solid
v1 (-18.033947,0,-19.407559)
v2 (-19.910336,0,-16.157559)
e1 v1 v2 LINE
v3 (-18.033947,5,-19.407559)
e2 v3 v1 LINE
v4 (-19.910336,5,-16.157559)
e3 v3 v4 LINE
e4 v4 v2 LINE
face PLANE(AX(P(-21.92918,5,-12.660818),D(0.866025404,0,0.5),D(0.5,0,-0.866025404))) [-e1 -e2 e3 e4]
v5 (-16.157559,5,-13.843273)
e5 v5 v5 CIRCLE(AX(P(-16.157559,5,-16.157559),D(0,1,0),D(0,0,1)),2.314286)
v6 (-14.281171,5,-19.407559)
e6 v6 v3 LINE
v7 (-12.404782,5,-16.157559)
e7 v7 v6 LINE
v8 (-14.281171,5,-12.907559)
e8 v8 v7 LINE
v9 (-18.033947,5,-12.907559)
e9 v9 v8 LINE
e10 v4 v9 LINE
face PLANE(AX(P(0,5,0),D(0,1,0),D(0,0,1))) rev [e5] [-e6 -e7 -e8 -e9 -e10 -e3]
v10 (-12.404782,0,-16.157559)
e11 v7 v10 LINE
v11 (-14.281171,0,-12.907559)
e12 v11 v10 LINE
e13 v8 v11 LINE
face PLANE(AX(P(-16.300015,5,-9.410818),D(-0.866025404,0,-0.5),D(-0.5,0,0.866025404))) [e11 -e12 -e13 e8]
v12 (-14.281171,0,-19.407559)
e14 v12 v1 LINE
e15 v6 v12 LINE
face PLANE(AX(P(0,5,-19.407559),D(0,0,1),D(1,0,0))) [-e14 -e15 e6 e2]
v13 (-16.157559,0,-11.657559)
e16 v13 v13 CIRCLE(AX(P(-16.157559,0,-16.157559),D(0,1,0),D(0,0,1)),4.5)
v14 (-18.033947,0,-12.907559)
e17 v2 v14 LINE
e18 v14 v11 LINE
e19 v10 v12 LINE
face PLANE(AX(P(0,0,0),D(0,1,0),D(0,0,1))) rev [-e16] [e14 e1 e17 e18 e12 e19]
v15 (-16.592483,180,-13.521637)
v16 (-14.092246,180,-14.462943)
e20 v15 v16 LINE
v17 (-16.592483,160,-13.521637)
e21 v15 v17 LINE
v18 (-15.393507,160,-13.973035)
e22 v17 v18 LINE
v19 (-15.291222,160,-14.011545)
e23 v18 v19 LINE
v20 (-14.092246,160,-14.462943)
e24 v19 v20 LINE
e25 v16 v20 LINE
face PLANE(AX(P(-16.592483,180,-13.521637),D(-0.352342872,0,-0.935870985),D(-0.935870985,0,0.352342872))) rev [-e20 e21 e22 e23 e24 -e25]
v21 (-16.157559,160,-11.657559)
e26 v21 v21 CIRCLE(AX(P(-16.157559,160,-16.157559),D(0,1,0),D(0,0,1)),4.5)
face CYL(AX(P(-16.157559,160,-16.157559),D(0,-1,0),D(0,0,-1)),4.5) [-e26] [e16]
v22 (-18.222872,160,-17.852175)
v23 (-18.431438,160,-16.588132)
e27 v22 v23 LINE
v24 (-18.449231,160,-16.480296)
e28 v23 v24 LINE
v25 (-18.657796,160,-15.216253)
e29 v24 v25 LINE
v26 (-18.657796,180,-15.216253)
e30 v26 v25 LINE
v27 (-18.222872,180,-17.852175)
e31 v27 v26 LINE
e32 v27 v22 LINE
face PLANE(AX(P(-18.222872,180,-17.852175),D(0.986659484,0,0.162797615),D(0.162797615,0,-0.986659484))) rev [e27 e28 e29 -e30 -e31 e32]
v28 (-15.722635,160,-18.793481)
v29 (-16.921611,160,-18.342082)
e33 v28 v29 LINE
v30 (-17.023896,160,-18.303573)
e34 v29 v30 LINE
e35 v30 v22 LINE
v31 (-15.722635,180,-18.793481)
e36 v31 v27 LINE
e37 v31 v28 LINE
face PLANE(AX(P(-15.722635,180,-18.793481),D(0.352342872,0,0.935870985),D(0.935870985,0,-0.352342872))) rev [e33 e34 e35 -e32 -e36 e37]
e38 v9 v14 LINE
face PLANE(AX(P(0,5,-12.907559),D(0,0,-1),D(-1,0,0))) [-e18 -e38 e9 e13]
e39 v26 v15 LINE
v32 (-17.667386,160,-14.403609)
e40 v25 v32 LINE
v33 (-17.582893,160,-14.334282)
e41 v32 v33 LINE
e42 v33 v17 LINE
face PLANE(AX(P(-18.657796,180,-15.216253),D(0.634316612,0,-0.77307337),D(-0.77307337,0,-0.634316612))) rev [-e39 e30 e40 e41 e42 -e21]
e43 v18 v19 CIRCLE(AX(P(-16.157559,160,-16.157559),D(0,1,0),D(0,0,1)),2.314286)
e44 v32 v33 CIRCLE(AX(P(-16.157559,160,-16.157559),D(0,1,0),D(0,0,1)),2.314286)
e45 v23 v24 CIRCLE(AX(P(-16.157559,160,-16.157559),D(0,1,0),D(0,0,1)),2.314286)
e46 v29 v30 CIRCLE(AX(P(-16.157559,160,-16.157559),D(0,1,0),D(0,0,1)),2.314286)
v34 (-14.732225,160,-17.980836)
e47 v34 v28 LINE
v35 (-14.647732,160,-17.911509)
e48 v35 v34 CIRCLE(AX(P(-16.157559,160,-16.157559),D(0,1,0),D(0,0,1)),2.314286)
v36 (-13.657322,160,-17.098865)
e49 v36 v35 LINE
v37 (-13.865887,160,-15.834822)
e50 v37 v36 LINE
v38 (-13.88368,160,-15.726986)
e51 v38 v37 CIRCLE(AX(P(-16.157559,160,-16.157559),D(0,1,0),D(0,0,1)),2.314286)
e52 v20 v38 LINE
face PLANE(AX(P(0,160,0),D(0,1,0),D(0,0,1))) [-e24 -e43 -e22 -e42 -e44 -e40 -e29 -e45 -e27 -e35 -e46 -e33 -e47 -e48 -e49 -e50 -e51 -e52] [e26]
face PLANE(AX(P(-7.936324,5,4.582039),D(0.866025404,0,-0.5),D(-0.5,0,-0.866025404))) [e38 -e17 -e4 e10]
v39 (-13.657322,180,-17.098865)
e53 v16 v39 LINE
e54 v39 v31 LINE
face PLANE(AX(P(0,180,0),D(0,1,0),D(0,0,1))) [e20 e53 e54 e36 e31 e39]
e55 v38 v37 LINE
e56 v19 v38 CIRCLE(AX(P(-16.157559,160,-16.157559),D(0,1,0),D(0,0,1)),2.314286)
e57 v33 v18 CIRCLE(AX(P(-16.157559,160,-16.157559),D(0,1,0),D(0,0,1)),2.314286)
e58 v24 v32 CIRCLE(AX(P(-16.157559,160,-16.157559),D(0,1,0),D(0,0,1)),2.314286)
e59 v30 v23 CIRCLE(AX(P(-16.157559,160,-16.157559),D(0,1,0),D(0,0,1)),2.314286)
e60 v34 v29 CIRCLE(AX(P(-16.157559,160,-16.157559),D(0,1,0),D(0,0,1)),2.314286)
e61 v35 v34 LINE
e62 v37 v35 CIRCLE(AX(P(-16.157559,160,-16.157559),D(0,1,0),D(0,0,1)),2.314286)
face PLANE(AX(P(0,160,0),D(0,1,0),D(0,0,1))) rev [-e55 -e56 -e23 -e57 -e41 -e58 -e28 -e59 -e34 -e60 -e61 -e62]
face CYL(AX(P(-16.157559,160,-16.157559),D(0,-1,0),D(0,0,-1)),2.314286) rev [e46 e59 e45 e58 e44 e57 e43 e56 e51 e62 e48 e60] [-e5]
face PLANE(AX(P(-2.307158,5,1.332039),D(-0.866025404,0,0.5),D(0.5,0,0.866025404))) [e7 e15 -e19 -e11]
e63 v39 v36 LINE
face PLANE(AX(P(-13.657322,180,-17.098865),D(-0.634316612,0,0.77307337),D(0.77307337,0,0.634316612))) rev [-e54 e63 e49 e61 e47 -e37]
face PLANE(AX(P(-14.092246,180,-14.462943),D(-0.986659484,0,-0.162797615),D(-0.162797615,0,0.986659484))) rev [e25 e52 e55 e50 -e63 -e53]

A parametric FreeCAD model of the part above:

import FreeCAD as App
import Part
import Sketcher
Q = App.Units.Quantity


def add_polygon(sketch, points):
    """Adds a closed chain of lines whose ends are joined by coincident constraints."""
    first, n = sketch.GeometryCount, len(points)
    for a, b in zip(points, points[1:] + points[:1]):
        sketch.addGeometry(Part.LineSegment(App.Vector(*a, 0), App.Vector(*b, 0)), False)
    for i in range(n):
        sketch.addConstraint(Sketcher.Constraint("Coincident", first + i, 2, first + (i + 1) % n, 1))

doc = App.newDocument("Part")
body = doc.addObject("PartDesign::Body", "Body")

# Sketch on XZ plane
sketch1 = doc.addObject("Sketcher::SketchObject", "Sketch")
body.addObject(sketch1)
sketch1.AttachmentSupport = (doc.XZ_Plane, [""])
sketch1.MapMode = "FlatFace"
sketch1.addGeometry([
    Part.Circle(App.Vector(-16.157559, -16.157559, 0), App.Vector(0, 0, 1), 4.5),
    Part.Circle(App.Vector(-16.157559, -16.157559, 0), App.Vector(0, 0, 1), 2.314286),
], False)
sketch1.addConstraint([
    Sketcher.Constraint("Coincident", 1, 3, 0, 3),
    Sketcher.Constraint("Diameter", 0, Q("9 mm")),
    Sketcher.Constraint("Diameter", 1, Q("4.628571 mm")),
    Sketcher.Constraint("DistanceX", 0, 3, -1, 1, Q("16.157559 mm")),
    Sketcher.Constraint("DistanceY", 0, 3, -1, 1, Q("16.157559 mm")),
])
pad1 = doc.addObject("PartDesign::Pad", "Pad")
body.addObject(pad1)
pad1.Profile = sketch1
pad1.Length = 160
pad1.Reversed = True

# Sketch on XZ plane
sketch2 = doc.addObject("Sketcher::SketchObject", "Sketch001")
body.addObject(sketch2)
sketch2.AttachmentSupport = (doc.XZ_Plane, [""])
sketch2.MapMode = "FlatFace"
add_polygon(sketch2, [(-18.033947, -12.907559), (-14.281171, -12.907559), (-12.404782, -16.157559), (-14.281171, -19.407559), (-18.033947, -19.407559), (-19.910336, -16.157559)])  # lines 0-5
sketch2.addGeometry(Part.Circle(App.Vector(-16.157559, -16.157559, 0), App.Vector(0, 0, 1), 2.314286), False)  # 6
sketch2.addConstraint([
    Sketcher.Constraint("Horizontal", 0),
    Sketcher.Constraint("Horizontal", 3),
    Sketcher.Constraint("Parallel", 1, 4),
    Sketcher.Constraint("Parallel", 2, 5),
    Sketcher.Constraint("Horizontal", 6, 3, 1, 2),
    Sketcher.Constraint("Horizontal", 1, 2, 4, 2),
    Sketcher.Constraint("Vertical", 0, 2, 2, 2),
    Sketcher.Constraint("Vertical", 3, 2, 5, 2),
    Sketcher.Constraint("Angle", 1, Q("-60 deg")),
    Sketcher.Constraint("DistanceY", 2, 2, 0, 2, Q("6.5 mm")),
    Sketcher.Constraint("Diameter", 6, Q("4.628571 mm")),
    Sketcher.Constraint("DistanceX", 0, 1, 0, 2, Q("3.752777 mm")),
    Sketcher.Constraint("DistanceX", 6, 3, -1, 1, Q("16.157559 mm")),
    Sketcher.Constraint("DistanceY", 6, 3, -1, 1, Q("16.157559 mm")),
    Sketcher.Constraint("DistanceX", 0, 2, -1, 1, Q("14.281171 mm")),
])
pocket1 = doc.addObject("PartDesign::Pocket", "Pocket")
body.addObject(pocket1)
pocket1.Profile = sketch2
pocket1.Length = 5

# Sketch on XZ plane
sketch3 = doc.addObject("Sketcher::SketchObject", "Sketch002")
body.addObject(sketch3)
sketch3.AttachmentSupport = (doc.XZ_Plane, [""])
sketch3.MapMode = "FlatFace"
sketch3.AttachmentOffset = App.Placement(App.Vector(0, 0, -160), App.Rotation())
add_polygon(sketch3, [(-14.092246, -14.462943), (-13.657322, -17.098865), (-15.722635, -18.793481), (-18.222872, -17.852175), (-18.657796, -15.216253), (-16.592483, -13.521637)])  # lines 0-5
sketch3.addConstraint([
    Sketcher.Constraint("Parallel", 0, 3),
    Sketcher.Constraint("Parallel", 1, 4),
    Sketcher.Constraint("Parallel", 2, 5),
    Sketcher.Constraint("Equal", 0, 1),
    Sketcher.Constraint("Equal", 1, 2),
    Sketcher.Constraint("Equal", 2, 3),
    Sketcher.Constraint("Distance", 0, Q("2.671562 mm")),
    Sketcher.Constraint("DistanceX", 0, 2, -1, 1, Q("13.657322 mm")),
    Sketcher.Constraint("DistanceY", 1, 2, -1, 1, Q("18.793481 mm")),
    Sketcher.Constraint("DistanceX", 2, 2, 0, 2, Q("4.565551 mm")),
    Sketcher.Constraint("DistanceY", 2, 2, 0, 2, Q("0.75331 mm")),
    Sketcher.Constraint("DistanceY", 2, 2, 3, 2, Q("2.635922 mm")),
])
pad2 = doc.addObject("PartDesign::Pad", "Pad001")
body.addObject(pad2)
pad2.Profile = sketch3
pad2.Length = 20
pad2.Reversed = True

doc.recompute()
